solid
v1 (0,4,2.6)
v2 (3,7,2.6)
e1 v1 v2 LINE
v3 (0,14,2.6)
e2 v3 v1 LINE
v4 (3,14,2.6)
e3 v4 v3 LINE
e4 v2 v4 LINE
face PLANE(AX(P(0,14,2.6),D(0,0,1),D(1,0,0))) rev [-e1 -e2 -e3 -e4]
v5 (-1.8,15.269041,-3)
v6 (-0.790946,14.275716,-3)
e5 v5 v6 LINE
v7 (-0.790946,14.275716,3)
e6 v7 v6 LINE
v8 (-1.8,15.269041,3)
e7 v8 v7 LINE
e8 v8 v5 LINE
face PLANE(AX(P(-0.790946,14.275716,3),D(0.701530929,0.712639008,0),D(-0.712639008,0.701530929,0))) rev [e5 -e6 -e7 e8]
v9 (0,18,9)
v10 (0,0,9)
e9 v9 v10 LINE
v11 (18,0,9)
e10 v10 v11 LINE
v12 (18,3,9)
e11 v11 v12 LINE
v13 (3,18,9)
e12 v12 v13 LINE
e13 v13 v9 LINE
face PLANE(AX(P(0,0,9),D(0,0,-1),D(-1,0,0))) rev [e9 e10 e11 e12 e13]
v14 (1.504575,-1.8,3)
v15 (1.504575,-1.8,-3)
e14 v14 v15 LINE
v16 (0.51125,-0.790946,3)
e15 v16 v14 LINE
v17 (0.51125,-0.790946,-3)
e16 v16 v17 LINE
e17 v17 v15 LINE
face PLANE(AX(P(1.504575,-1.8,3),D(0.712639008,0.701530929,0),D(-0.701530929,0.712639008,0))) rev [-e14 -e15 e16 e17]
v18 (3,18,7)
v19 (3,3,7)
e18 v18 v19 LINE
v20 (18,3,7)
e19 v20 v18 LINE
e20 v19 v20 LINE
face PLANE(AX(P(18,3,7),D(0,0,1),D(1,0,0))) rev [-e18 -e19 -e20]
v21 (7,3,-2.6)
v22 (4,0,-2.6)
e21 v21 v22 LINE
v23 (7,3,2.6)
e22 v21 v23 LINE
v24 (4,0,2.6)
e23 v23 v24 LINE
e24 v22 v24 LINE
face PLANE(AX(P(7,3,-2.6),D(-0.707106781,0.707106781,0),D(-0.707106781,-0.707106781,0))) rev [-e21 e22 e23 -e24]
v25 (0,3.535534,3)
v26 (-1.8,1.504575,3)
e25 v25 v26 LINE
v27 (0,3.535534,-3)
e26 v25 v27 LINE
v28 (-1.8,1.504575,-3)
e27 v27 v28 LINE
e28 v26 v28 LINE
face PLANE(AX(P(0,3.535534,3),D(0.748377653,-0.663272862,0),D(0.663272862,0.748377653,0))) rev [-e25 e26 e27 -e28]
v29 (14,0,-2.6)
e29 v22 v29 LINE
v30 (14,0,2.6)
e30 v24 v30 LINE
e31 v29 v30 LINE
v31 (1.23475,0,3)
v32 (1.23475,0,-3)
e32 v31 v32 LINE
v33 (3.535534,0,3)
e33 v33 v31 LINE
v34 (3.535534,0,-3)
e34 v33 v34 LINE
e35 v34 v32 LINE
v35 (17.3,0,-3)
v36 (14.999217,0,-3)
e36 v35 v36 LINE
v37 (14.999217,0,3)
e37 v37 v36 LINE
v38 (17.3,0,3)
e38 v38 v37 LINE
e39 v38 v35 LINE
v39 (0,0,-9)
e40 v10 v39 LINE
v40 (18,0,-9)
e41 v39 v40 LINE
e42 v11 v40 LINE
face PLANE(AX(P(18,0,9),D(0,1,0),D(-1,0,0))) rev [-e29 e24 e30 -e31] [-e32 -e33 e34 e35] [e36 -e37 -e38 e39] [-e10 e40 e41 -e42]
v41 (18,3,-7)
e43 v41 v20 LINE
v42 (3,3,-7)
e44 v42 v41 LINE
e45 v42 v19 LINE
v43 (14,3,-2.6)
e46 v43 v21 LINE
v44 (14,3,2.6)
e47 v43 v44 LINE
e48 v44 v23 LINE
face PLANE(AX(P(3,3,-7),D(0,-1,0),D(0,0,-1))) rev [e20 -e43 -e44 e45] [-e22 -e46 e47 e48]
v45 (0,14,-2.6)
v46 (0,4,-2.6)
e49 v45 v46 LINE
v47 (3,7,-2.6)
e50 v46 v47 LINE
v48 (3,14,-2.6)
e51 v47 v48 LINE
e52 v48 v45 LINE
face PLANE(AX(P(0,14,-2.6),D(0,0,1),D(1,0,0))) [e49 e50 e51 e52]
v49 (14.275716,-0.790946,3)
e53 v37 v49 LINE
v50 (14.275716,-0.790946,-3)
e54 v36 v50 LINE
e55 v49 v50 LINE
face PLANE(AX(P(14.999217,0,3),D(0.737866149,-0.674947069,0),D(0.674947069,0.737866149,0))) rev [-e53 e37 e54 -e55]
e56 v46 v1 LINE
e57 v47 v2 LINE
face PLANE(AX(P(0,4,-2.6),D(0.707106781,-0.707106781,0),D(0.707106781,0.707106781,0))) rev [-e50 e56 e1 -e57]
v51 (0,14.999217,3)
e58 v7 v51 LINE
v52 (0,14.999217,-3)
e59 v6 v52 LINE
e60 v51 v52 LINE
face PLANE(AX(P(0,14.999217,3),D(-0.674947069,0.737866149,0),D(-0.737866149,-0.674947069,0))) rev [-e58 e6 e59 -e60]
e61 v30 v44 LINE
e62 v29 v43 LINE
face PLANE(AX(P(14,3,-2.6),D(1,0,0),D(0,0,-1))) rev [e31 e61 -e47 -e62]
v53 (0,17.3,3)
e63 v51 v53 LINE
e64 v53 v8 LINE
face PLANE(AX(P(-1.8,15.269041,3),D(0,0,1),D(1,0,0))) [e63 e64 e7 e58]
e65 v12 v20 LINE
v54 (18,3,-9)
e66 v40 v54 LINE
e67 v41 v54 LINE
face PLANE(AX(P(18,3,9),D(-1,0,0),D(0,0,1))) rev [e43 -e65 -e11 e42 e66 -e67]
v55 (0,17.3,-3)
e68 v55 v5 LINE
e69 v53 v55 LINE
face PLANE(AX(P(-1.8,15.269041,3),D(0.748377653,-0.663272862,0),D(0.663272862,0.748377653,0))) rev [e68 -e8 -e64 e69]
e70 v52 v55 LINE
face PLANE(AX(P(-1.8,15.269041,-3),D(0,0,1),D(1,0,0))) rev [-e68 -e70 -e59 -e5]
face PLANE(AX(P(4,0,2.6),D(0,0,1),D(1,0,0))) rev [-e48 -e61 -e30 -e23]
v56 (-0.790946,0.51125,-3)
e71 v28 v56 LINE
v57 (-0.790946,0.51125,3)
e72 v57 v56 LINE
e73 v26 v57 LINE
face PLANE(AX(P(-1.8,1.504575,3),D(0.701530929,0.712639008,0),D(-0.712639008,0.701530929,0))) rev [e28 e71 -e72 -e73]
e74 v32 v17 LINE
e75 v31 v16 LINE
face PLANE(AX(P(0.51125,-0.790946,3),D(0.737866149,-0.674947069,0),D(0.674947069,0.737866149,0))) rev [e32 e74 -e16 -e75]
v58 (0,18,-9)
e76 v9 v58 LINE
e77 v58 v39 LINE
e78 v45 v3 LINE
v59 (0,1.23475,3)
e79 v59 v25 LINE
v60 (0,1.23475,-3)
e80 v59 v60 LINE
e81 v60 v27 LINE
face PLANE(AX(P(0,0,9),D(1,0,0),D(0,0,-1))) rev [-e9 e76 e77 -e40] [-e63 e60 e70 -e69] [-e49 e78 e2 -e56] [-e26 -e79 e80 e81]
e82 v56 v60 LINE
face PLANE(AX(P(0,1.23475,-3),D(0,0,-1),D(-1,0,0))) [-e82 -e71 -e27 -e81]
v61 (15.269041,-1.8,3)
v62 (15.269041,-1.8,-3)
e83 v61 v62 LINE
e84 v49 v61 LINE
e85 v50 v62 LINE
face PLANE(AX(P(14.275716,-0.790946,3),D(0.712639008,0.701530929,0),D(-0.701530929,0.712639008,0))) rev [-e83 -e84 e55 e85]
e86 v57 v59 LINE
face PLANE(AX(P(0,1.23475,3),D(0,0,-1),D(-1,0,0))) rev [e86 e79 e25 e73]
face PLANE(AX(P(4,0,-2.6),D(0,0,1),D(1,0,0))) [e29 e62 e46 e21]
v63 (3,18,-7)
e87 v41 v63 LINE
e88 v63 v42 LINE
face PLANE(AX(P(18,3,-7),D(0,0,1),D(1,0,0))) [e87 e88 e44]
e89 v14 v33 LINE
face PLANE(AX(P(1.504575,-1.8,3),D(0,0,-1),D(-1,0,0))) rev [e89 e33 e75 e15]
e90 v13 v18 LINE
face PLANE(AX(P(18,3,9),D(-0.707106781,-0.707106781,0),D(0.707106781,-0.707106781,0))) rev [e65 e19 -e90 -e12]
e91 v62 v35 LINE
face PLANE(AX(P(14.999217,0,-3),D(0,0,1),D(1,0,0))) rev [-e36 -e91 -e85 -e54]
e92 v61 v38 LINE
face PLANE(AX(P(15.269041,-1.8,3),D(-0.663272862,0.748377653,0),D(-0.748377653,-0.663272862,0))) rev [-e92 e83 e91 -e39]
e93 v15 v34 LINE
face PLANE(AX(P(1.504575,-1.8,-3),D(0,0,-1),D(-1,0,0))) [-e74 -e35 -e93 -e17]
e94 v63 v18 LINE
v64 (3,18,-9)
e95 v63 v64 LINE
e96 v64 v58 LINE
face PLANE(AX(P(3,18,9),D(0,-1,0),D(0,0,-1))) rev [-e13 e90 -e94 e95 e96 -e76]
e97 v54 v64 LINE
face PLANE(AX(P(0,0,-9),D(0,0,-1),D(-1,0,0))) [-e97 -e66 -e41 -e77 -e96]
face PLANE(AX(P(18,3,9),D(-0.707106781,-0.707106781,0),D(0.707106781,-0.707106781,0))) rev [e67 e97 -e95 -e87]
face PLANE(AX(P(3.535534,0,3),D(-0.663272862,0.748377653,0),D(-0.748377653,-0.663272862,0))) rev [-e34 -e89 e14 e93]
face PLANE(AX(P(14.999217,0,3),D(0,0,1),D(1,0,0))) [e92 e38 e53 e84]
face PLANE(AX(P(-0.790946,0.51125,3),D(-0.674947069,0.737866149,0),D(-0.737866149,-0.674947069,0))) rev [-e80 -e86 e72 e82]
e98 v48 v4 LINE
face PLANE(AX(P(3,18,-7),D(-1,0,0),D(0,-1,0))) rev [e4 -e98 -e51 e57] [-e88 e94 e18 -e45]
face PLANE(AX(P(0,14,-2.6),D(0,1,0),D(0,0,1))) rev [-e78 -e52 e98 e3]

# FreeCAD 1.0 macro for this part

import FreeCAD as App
import Part
import Sketcher
from FreeCAD import Vector
Q = App.Units.Quantity


def add_polygon(sketch, points):
    """Adds a closed chain of lines whose ends are joined by coincident constraints."""
    first, n = sketch.GeometryCount, len(points)
    for a, b in zip(points, points[1:] + points[:1]):
        sketch.addGeometry(Part.LineSegment(App.Vector(*a, 0), App.Vector(*b, 0)), False)
    for i in range(n):
        sketch.addConstraint(Sketcher.Constraint("Coincident", first + i, 2, first + (i + 1) % n, 1))

doc = App.newDocument("Part")
body = doc.addObject("PartDesign::Body", "Body")

sketch1 = body.newObject("Sketcher::SketchObject", "Sketch")
sketch1.AttachmentSupport = (doc.getObject("XY_Plane"), [""])
sketch1.MapMode = "FlatFace"
add_polygon(sketch1, [(0, 18), (0, 0), (18, 0), (18, 3), (3, 18)])
sketch1.addConstraint(Sketcher.Constraint("Vertical", 0))
sketch1.addConstraint(Sketcher.Constraint("Horizontal", 1))
sketch1.addConstraint(Sketcher.Constraint("Vertical", 2))
sketch1.addConstraint(Sketcher.Constraint("Horizontal", 4))
sketch1.addConstraint(Sketcher.Constraint("Coincident", 0, 2, -1, 1))
sketch1.addConstraint(Sketcher.Constraint("Equal", 1, 0))
sketch1.addConstraint(Sketcher.Constraint("Equal", 4, 2))
sketch1.addConstraint(Sketcher.Constraint("DistanceX", 1, 1, 1, 2, Q("18 mm")))
sketch1.addConstraint(Sketcher.Constraint("DistanceX", 4, 2, 4, 1, Q("3 mm")))
pad1 = body.newObject("PartDesign::Pad", "Pad")
pad1.Profile = sketch1
pad1.Length = 18
pad1.Midplane = True

sketch2 = body.newObject("Sketcher::SketchObject", "Sketch001")
sketch2.AttachmentSupport = (doc.getObject("XY_Plane"), [""])
sketch2.MapMode = "FlatFace"
add_polygon(sketch2, [(3, 18), (3, 3), (18, 3)])
sketch2.addConstraint(Sketcher.Constraint("Vertical", 0))
sketch2.addConstraint(Sketcher.Constraint("Horizontal", 1))
sketch2.addConstraint(Sketcher.Constraint("Equal", 1, 0))
sketch2.addConstraint(Sketcher.Constraint("DistanceX", 1, 1, 1, 2, Q("15 mm")))
sketch2.addConstraint(Sketcher.Constraint("DistanceX", -1, 1, 0, 2, Q("3 mm")))
sketch2.addConstraint(Sketcher.Constraint("DistanceY", -1, 1, 0, 2, Q("3 mm")))
pocket1 = body.newObject("PartDesign::Pocket", "Pocket")
pocket1.Profile = sketch2
pocket1.Length = 14
pocket1.Midplane = True

sketch3 = body.newObject("Sketcher::SketchObject", "Sketch002")
sketch3.AttachmentSupport = (doc.getObject("XY_Plane"), [""])
sketch3.MapMode = "FlatFace"
add_polygon(sketch3, [(3, 14), (0, 14), (0, 4), (3, 7)])
add_polygon(sketch3, [(14, 3), (7, 3), (4, 0), (14, 0)])
sketch3.addConstraint(Sketcher.Constraint("Horizontal", 0))
sketch3.addConstraint(Sketcher.Constraint("Vertical", 1))
sketch3.addConstraint(Sketcher.Constraint("Vertical", 3))
sketch3.addConstraint(Sketcher.Constraint("Horizontal", 4))
sketch3.addConstraint(Sketcher.Constraint("Horizontal", 6))
sketch3.addConstraint(Sketcher.Constraint("Vertical", 7))
sketch3.addConstraint(Sketcher.Constraint("PointOnObject", 0, 2, -2))
sketch3.addConstraint(Sketcher.Constraint("PointOnObject", 5, 2, -1))
sketch3.addConstraint(Sketcher.Constraint("Parallel", 2, 5))
sketch3.addConstraint(Sketcher.Constraint("Equal", 6, 1))
sketch3.addConstraint(Sketcher.Constraint("Equal", 4, 3))
sketch3.addConstraint(Sketcher.Constraint("Equal", 0, 7))
sketch3.addConstraint(Sketcher.Constraint("DistanceX", 0, 2, 0, 1, Q("3 mm")))
sketch3.addConstraint(Sketcher.Constraint("DistanceX", 4, 2, 4, 1, Q("7 mm")))
sketch3.addConstraint(Sketcher.Constraint("DistanceY", -1, 1, 0, 2, Q("14 mm")))
sketch3.addConstraint(Sketcher.Constraint("DistanceX", -1, 1, 4, 2, Q("7 mm")))
pocket2 = body.newObject("PartDesign::Pocket", "Pocket001")
pocket2.Profile = sketch3
pocket2.Length = 5.2
pocket2.Midplane = True

sketch4 = body.newObject("Sketcher::SketchObject", "Sketch003")
sketch4.AttachmentSupport = (doc.getObject("XY_Plane"), [""])
sketch4.MapMode = "FlatFace"
add_polygon(sketch4, [(0.51125, -0.790946), (1.504575, -1.8), (3.535534, 0), (1.23475, 0)])
add_polygon(sketch4, [(0, 3.535534), (-1.8, 1.504575), (-0.790946, 0.51125), (0, 1.23475)])
add_polygon(sketch4, [(0, 14.999217), (0, 17.3), (-1.8, 15.269041), (-0.790946, 14.275716)])
add_polygon(sketch4, [(14.999217, 0), (14.275716, -0.790946), (15.269041, -1.8), (17.3, 0)])
sketch4.addConstraint(Sketcher.Constraint("Horizontal", 2))
sketch4.addConstraint(Sketcher.Constraint("Vertical", 7))
sketch4.addConstraint(Sketcher.Constraint("Vertical", 8))
sketch4.addConstraint(Sketcher.Constraint("Horizontal", 15))
sketch4.addConstraint(Sketcher.Constraint("PointOnObject", 1, 2, -1))
sketch4.addConstraint(Sketcher.Constraint("PointOnObject", 6, 2, -2))
sketch4.addConstraint(Sketcher.Constraint("PointOnObject", 8, 2, -2))
sketch4.addConstraint(Sketcher.Constraint("PointOnObject", 14, 2, -1))
sketch4.addConstraint(Sketcher.Constraint("Parallel", 4, 9))
sketch4.addConstraint(Sketcher.Constraint("Parallel", 5, 10))
sketch4.addConstraint(Sketcher.Constraint("Parallel", 6, 11))
sketch4.addConstraint(Sketcher.Constraint("Parallel", 3, 12))
sketch4.addConstraint(Sketcher.Constraint("Parallel", 0, 13))
sketch4.addConstraint(Sketcher.Constraint("Parallel", 1, 14))
sketch4.addConstraint(Sketcher.Constraint("Horizontal", 3, 2, 12, 2))
sketch4.addConstraint(Sketcher.Constraint("Horizontal", 0, 2, 13, 2))
sketch4.addConstraint(Sketcher.Constraint("Vertical", 4, 2, 9, 2))
sketch4.addConstraint(Sketcher.Constraint("Vertical", 5, 2, 10, 2))
sketch4.addConstraint(Sketcher.Constraint("Equal", 15, 7))
sketch4.addConstraint(Sketcher.Constraint("Equal", 1, 4))
sketch4.addConstraint(Sketcher.Constraint("Equal", 0, 5))
sketch4.addConstraint(Sketcher.Constraint("Equal", 3, 6))
sketch4.addConstraint(Sketcher.Constraint("DistanceY", 0, 2, -1, 1, Q("1.8 mm")))
sketch4.addConstraint(Sketcher.Constraint("DistanceX", 4, 2, -1, 1, Q("1.8 mm")))
sketch4.addConstraint(Sketcher.Constraint("DistanceY", -1, 1, 8, 2, Q("17.3 mm")))
sketch4.addConstraint(Sketcher.Constraint("DistanceX", -1, 1, 14, 2, Q("17.3 mm")))
sketch4.addConstraint(Sketcher.Constraint("DistanceX", 3, 2, 2, 2, Q("0.723501 mm")))
sketch4.addConstraint(Sketcher.Constraint("Distance", 0, Q("1.41594 mm")))
sketch4.addConstraint(Sketcher.Constraint("DistanceX", 2, 2, 2, 1, Q("2.300783 mm")))
sketch4.addConstraint(Sketcher.Constraint("DistanceX", -1, 1, 2, 2, Q("1.23475 mm")))
sketch4.addConstraint(Sketcher.Constraint("DistanceY", -1, 1, 5, 2, Q("0.51125 mm")))
sketch4.addConstraint(Sketcher.Constraint("DistanceY", -1, 1, 9, 2, Q("15.269041 mm")))
pad2 = body.newObject("PartDesign::Pad", "Pad001")
pad2.Profile = sketch4
pad2.Length = 6
pad2.Midplane = True

doc.recompute()
